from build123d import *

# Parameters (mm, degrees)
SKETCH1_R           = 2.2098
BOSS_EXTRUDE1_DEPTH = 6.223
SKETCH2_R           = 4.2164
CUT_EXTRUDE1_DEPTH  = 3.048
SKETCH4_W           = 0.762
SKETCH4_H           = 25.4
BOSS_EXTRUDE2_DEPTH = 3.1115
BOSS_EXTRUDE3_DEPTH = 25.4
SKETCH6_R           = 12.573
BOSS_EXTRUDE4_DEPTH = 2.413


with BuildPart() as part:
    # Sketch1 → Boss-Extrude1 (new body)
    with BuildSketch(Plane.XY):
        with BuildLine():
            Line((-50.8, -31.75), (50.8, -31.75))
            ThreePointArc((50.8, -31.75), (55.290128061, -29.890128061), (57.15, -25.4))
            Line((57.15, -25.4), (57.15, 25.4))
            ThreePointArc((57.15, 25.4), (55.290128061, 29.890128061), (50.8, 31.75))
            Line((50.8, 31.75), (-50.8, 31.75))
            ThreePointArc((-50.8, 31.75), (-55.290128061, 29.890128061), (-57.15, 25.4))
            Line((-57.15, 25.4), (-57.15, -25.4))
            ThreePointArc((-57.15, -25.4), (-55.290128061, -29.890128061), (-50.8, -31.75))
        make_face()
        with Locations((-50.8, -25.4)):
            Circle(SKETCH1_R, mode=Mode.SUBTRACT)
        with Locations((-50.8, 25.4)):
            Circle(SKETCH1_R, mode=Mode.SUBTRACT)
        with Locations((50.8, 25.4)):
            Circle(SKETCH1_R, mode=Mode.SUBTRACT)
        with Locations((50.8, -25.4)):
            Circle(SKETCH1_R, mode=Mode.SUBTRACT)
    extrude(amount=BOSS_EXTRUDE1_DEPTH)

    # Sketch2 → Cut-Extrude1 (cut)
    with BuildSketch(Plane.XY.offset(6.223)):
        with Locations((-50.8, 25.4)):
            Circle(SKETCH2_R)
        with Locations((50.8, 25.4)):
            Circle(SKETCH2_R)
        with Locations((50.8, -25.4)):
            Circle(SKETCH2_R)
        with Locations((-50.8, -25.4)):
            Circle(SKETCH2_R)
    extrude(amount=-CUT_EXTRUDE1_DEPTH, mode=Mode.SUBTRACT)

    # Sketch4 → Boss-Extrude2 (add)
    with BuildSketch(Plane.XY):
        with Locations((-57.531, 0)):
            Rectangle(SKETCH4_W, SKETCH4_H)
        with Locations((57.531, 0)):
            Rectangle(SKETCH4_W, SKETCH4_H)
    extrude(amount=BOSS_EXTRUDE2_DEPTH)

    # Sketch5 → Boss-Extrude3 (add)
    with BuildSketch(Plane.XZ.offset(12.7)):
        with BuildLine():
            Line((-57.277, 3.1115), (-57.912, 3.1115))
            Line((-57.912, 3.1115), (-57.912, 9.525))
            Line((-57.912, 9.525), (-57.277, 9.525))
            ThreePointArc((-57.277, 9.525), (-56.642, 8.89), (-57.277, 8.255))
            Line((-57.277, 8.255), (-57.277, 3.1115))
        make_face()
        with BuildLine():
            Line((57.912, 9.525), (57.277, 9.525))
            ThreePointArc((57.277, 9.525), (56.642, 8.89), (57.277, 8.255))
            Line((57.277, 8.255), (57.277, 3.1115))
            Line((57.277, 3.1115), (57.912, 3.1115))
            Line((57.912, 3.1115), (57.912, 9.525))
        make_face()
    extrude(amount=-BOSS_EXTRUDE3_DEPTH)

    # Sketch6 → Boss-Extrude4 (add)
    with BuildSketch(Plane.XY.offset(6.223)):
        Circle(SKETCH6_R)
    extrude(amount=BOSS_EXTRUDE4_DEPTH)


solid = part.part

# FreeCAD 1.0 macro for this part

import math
import FreeCAD as App
import Part
import Sketcher

V = App.Vector
Q = App.Units.Quantity

doc = App.newDocument("Part")
body = doc.addObject("PartDesign::Body", "Body")

sketch1 = body.newObject("Sketcher::SketchObject", "Sketch")
sketch1.AttachmentSupport = (doc.getObject("XY_Plane"), [""])
sketch1.MapMode = "FlatFace"
sketch1.addGeometry(Part.LineSegment(V(-50.8, -31.8, 0), V(50.8, -31.8, 0)), False)
sketch1.addGeometry(Part.ArcOfCircle(Part.Circle(V(50.8, -25.4, 0), V(0, 0, 1), 6.3), math.radians(-90), math.radians(0)), False)
sketch1.addGeometry(Part.LineSegment(V(57.1, -25.4, 0), V(57.1, 25.4, 0)), False)
sketch1.addGeometry(Part.ArcOfCircle(Part.Circle(V(50.8, 25.4, 0), V(0, 0, 1), 6.3), math.radians(0), math.radians(90)), False)
sketch1.addGeometry(Part.LineSegment(V(50.8, 31.8, 0), V(-50.8, 31.8, 0)), False)
sketch1.addGeometry(Part.ArcOfCircle(Part.Circle(V(-50.8, 25.4, 0), V(0, 0, 1), 6.3), math.radians(90), math.radians(180)), False)
sketch1.addGeometry(Part.LineSegment(V(-57.1, 25.4, 0), V(-57.1, -25.4, 0)), False)
sketch1.addGeometry(Part.ArcOfCircle(Part.Circle(V(-50.8, -25.4, 0), V(0, 0, 1), 6.3), math.radians(180), math.radians(270)), False)
sketch1.addGeometry(Part.Circle(V(-50.8, -25.4, 0), V(0, 0, 1), 2.2), False)
sketch1.addGeometry(Part.Circle(V(50.8, -25.4, 0), V(0, 0, 1), 2.2), False)
sketch1.addGeometry(Part.Circle(V(-50.8, 25.4, 0), V(0, 0, 1), 2.2), False)
sketch1.addGeometry(Part.Circle(V(50.8, 25.4, 0), V(0, 0, 1), 2.2), False)
sketch1.addConstraint(Sketcher.Constraint("Tangent", 0, 2, 1, 1))
sketch1.addConstraint(Sketcher.Constraint("Tangent", 1, 2, 2, 1))
sketch1.addConstraint(Sketcher.Constraint("Tangent", 2, 2, 3, 1))
sketch1.addConstraint(Sketcher.Constraint("Tangent", 3, 2, 4, 1))
sketch1.addConstraint(Sketcher.Constraint("Tangent", 4, 2, 5, 1))
sketch1.addConstraint(Sketcher.Constraint("Tangent", 5, 2, 6, 1))
sketch1.addConstraint(Sketcher.Constraint("Tangent", 6, 2, 7, 1))
sketch1.addConstraint(Sketcher.Constraint("Tangent", 7, 2, 0, 1))
sketch1.addConstraint(Sketcher.Constraint("Horizontal", 0))
sketch1.addConstraint(Sketcher.Constraint("Vertical", 2))
sketch1.addConstraint(Sketcher.Constraint("Horizontal", 4))
sketch1.addConstraint(Sketcher.Constraint("Vertical", 6))
sketch1.addConstraint(Sketcher.Constraint("Coincident", 8, 3, 7, 3))
sketch1.addConstraint(Sketcher.Constraint("Coincident", 9, 3, 1, 3))
sketch1.addConstraint(Sketcher.Constraint("Coincident", 10, 3, 5, 3))
sketch1.addConstraint(Sketcher.Constraint("Coincident", 11, 3, 3, 3))
sketch1.addConstraint(Sketcher.Constraint("Equal", 1, 3))
sketch1.addConstraint(Sketcher.Constraint("Equal", 3, 5))
sketch1.addConstraint(Sketcher.Constraint("Equal", 5, 7))
sketch1.addConstraint(Sketcher.Constraint("Equal", 8, 9))
sketch1.addConstraint(Sketcher.Constraint("Equal", 9, 10))
sketch1.addConstraint(Sketcher.Constraint("Equal", 10, 11))
sketch1.addConstraint(Sketcher.Constraint("Symmetric", 1, 3, 5, 3, -1, 1))
sketch1.addConstraint(Sketcher.Constraint("DistanceX", 0, 1, 0, 2, Q("4 in")))
sketch1.addConstraint(Sketcher.Constraint("DistanceY", 2, 1, 2, 2, Q("2 in")))
sketch1.addConstraint(Sketcher.Constraint("Radius", 1, Q("0.25 in")))
sketch1.addConstraint(Sketcher.Constraint("Diameter", 8, Q("0.174 in")))
pad1 = body.newObject("PartDesign::Pad", "Pad")
pad1.Profile = sketch1
pad1.Length = Q("0.245 in")

sketch2 = body.newObject("Sketcher::SketchObject", "Sketch001")
sketch2.AttachmentSupport = (doc.getObject("XY_Plane"), [""])
sketch2.MapMode = "FlatFace"
sketch2.AttachmentOffset = App.Placement(V(0, 0, 0.245 * 25.4), App.Rotation())
sketch2.addGeometry(Part.Circle(V(-50.8, 25.4, 0), V(0, 0, 1), 4.2), False)
sketch2.addGeometry(Part.Circle(V(50.8, 25.4, 0), V(0, 0, 1), 4.2), False)
sketch2.addGeometry(Part.Circle(V(50.8, -25.4, 0), V(0, 0, 1), 4.2), False)
sketch2.addGeometry(Part.Circle(V(-50.8, -25.4, 0), V(0, 0, 1), 4.2), False)
sketch2.addConstraint(Sketcher.Constraint("Equal", 0, 1))
sketch2.addConstraint(Sketcher.Constraint("Equal", 1, 2))
sketch2.addConstraint(Sketcher.Constraint("Equal", 2, 3))
sketch2.addConstraint(Sketcher.Constraint("Symmetric", 0, 3, 2, 3, -1, 1))
sketch2.addConstraint(Sketcher.Constraint("Symmetric", 1, 3, 3, 3, -1, 1))
sketch2.addConstraint(Sketcher.Constraint("Symmetric", 0, 3, 1, 3, -2))
sketch2.addConstraint(Sketcher.Constraint("Diameter", 0, Q("0.332 in")))
sketch2.addConstraint(Sketcher.Constraint("DistanceX", 0, 3, -1, 1, Q("2 in")))
sketch2.addConstraint(Sketcher.Constraint("DistanceY", -1, 1, 0, 3, Q("1 in")))
pocket1 = body.newObject("PartDesign::Pocket", "Pocket")
pocket1.Profile = sketch2
pocket1.Length = Q("0.12 in")

sketch3 = body.newObject("Sketcher::SketchObject", "Sketch002")
sketch3.AttachmentSupport = (doc.getObject("XY_Plane"), [""])
sketch3.MapMode = "FlatFace"
sketch3.addGeometry(Part.LineSegment(V(-57.9, 12.7, 0), V(-57.9, -12.7, 0)), False)
sketch3.addGeometry(Part.LineSegment(V(-57.9, -12.7, 0), V(-57.1, -12.7, 0)), False)
sketch3.addGeometry(Part.LineSegment(V(-57.1, -12.7, 0), V(-57.1, 12.7, 0)), False)
sketch3.addGeometry(Part.LineSegment(V(-57.1, 12.7, 0), V(-57.9, 12.7, 0)), False)
sketch3.addGeometry(Part.LineSegment(V(57.1, 12.7, 0), V(57.1, -12.7, 0)), False)
sketch3.addGeometry(Part.LineSegment(V(57.1, -12.7, 0), V(57.9, -12.7, 0)), False)
sketch3.addGeometry(Part.LineSegment(V(57.9, -12.7, 0), V(57.9, 12.7, 0)), False)
sketch3.addGeometry(Part.LineSegment(V(57.9, 12.7, 0), V(57.1, 12.7, 0)), False)
sketch3.addConstraint(Sketcher.Constraint("Coincident", 0, 2, 1, 1))
sketch3.addConstraint(Sketcher.Constraint("Coincident", 1, 2, 2, 1))
sketch3.addConstraint(Sketcher.Constraint("Coincident", 2, 2, 3, 1))
sketch3.addConstraint(Sketcher.Constraint("Coincident", 3, 2, 0, 1))
sketch3.addConstraint(Sketcher.Constraint("Coincident", 4, 2, 5, 1))
sketch3.addConstraint(Sketcher.Constraint("Coincident", 5, 2, 6, 1))
sketch3.addConstraint(Sketcher.Constraint("Coincident", 6, 2, 7, 1))
sketch3.addConstraint(Sketcher.Constraint("Coincident", 7, 2, 4, 1))
sketch3.addConstraint(Sketcher.Constraint("Vertical", 0))
sketch3.addConstraint(Sketcher.Constraint("Horizontal", 1))
sketch3.addConstraint(Sketcher.Constraint("Vertical", 2))
sketch3.addConstraint(Sketcher.Constraint("Horizontal", 3))
sketch3.addConstraint(Sketcher.Constraint("Vertical", 4))
sketch3.addConstraint(Sketcher.Constraint("Horizontal", 5))
sketch3.addConstraint(Sketcher.Constraint("Vertical", 6))
sketch3.addConstraint(Sketcher.Constraint("Horizontal", 7))
sketch3.addConstraint(Sketcher.Constraint("Symmetric", 2, 2, 4, 2, -1, 1))
sketch3.addConstraint(Sketcher.Constraint("Symmetric", 0, 2, 6, 2, -1, 1))
sketch3.addConstraint(Sketcher.Constraint("Horizontal", 1, 2, 4, 2))
sketch3.addConstraint(Sketcher.Constraint("DistanceY", 0, 2, 0, 1, Q("1 in")))
sketch3.addConstraint(Sketcher.Constraint("DistanceX", 1, 1, 1, 2, Q("0.03 in")))
sketch3.addConstraint(Sketcher.Constraint("DistanceX", 1, 2, 4, 2, Q("4.5 in")))
pad2 = body.newObject("PartDesign::Pad", "Pad001")
pad2.Profile = sketch3
pad2.Length = Q("0.1225 in")

sketch4 = body.newObject("Sketcher::SketchObject", "Sketch003")
sketch4.AttachmentSupport = (doc.getObject("XZ_Plane"), [""])
sketch4.MapMode = "FlatFace"
sketch4.AttachmentOffset = App.Placement(V(0, 0, 0.5 * 25.4), App.Rotation())
sketch4.addGeometry(Part.LineSegment(V(-57.9, 3.1, 0), V(-57.3, 3.1, 0)), False)
sketch4.addGeometry(Part.LineSegment(V(-57.3, 3.1, 0), V(-57.3, 8.3, 0)), False)
sketch4.addGeometry(Part.ArcOfCircle(Part.Circle(V(-57.3, 8.9, 0), V(0, 0, 1), 0.6), math.radians(-90), math.radians(90)), False)
sketch4.addGeometry(Part.LineSegment(V(-57.3, 9.5, 0), V(-57.9, 9.5, 0)), False)
sketch4.addGeometry(Part.LineSegment(V(-57.9, 9.5, 0), V(-57.9, 3.1, 0)), False)
sketch4.addGeometry(Part.LineSegment(V(57.9, 9.5, 0), V(57.3, 9.5, 0)), False)
sketch4.addGeometry(Part.ArcOfCircle(Part.Circle(V(57.3, 8.9, 0), V(0, 0, 1), 0.6), math.radians(90), math.radians(270)), False)
sketch4.addGeometry(Part.LineSegment(V(57.3, 8.3, 0), V(57.3, 3.1, 0)), False)
sketch4.addGeometry(Part.LineSegment(V(57.3, 3.1, 0), V(57.9, 3.1, 0)), False)
sketch4.addGeometry(Part.LineSegment(V(57.9, 3.1, 0), V(57.9, 9.5, 0)), False)
sketch4.addConstraint(Sketcher.Constraint("Coincident", 0, 2, 1, 1))
sketch4.addConstraint(Sketcher.Constraint("Coincident", 1, 2, 2, 1))
sketch4.addConstraint(Sketcher.Constraint("Tangent", 2, 2, 3, 1))
sketch4.addConstraint(Sketcher.Constraint("Coincident", 3, 2, 4, 1))
sketch4.addConstraint(Sketcher.Constraint("Coincident", 4, 2, 0, 1))
sketch4.addConstraint(Sketcher.Constraint("Tangent", 5, 2, 6, 1))
sketch4.addConstraint(Sketcher.Constraint("Coincident", 6, 2, 7, 1))
sketch4.addConstraint(Sketcher.Constraint("Coincident", 7, 2, 8, 1))
sketch4.addConstraint(Sketcher.Constraint("Coincident", 8, 2, 9, 1))
sketch4.addConstraint(Sketcher.Constraint("Coincident", 9, 2, 5, 1))
sketch4.addConstraint(Sketcher.Constraint("Horizontal", 0))
sketch4.addConstraint(Sketcher.Constraint("Vertical", 1))
sketch4.addConstraint(Sketcher.Constraint("Horizontal", 3))
sketch4.addConstraint(Sketcher.Constraint("Vertical", 4))
sketch4.addConstraint(Sketcher.Constraint("Horizontal", 5))
sketch4.addConstraint(Sketcher.Constraint("Vertical", 7))
sketch4.addConstraint(Sketcher.Constraint("Horizontal", 8))
sketch4.addConstraint(Sketcher.Constraint("Vertical", 9))
sketch4.addConstraint(Sketcher.Constraint("Equal", 2, 6))
sketch4.addConstraint(Sketcher.Constraint("Symmetric", 2, 3, 6, 3, -2))
sketch4.addConstraint(Sketcher.Constraint("Symmetric", 0, 2, 7, 2, -2))
sketch4.addConstraint(Sketcher.Constraint("Vertical", 2, 3, 0, 2))
sketch4.addConstraint(Sketcher.Constraint("Equal", 3, 5))
sketch4.addConstraint(Sketcher.Constraint("Radius", 2, Q("0.025 in")))
sketch4.addConstraint(Sketcher.Constraint("DistanceX", 0, 1, 0, 2, Q("0.025 in")))
sketch4.addConstraint(Sketcher.Constraint("DistanceY", -1, 1, 2, 3, Q("0.35 in")))
sketch4.addConstraint(Sketcher.Constraint("DistanceX", 3, 2, -1, 1, Q("2.28 in")))
sketch4.addConstraint(Sketcher.Constraint("DistanceY", 1, 1, 1, 2, Q("0.2025 in")))
pad3 = body.newObject("PartDesign::Pad", "Pad002")
pad3.Profile = sketch4
pad3.Length = Q("1 in")
pad3.Reversed = True

sketch5 = body.newObject("Sketcher::SketchObject", "Sketch004")
sketch5.AttachmentSupport = (doc.getObject("XY_Plane"), [""])
sketch5.MapMode = "FlatFace"
sketch5.AttachmentOffset = App.Placement(V(0, 0, 0.245 * 25.4), App.Rotation())
sketch5.addGeometry(Part.Circle(V(0, 0, 0), V(0, 0, 1), 13), False)
sketch5.addConstraint(Sketcher.Constraint("Coincident", 0, 3, -1, 1))
sketch5.addConstraint(Sketcher.Constraint("Diameter", 0, Q("0.99 in")))
pad4 = body.newObject("PartDesign::Pad", "Pad003")
pad4.Profile = sketch5
pad4.Length = Q("0.095 in")

doc.recompute()
